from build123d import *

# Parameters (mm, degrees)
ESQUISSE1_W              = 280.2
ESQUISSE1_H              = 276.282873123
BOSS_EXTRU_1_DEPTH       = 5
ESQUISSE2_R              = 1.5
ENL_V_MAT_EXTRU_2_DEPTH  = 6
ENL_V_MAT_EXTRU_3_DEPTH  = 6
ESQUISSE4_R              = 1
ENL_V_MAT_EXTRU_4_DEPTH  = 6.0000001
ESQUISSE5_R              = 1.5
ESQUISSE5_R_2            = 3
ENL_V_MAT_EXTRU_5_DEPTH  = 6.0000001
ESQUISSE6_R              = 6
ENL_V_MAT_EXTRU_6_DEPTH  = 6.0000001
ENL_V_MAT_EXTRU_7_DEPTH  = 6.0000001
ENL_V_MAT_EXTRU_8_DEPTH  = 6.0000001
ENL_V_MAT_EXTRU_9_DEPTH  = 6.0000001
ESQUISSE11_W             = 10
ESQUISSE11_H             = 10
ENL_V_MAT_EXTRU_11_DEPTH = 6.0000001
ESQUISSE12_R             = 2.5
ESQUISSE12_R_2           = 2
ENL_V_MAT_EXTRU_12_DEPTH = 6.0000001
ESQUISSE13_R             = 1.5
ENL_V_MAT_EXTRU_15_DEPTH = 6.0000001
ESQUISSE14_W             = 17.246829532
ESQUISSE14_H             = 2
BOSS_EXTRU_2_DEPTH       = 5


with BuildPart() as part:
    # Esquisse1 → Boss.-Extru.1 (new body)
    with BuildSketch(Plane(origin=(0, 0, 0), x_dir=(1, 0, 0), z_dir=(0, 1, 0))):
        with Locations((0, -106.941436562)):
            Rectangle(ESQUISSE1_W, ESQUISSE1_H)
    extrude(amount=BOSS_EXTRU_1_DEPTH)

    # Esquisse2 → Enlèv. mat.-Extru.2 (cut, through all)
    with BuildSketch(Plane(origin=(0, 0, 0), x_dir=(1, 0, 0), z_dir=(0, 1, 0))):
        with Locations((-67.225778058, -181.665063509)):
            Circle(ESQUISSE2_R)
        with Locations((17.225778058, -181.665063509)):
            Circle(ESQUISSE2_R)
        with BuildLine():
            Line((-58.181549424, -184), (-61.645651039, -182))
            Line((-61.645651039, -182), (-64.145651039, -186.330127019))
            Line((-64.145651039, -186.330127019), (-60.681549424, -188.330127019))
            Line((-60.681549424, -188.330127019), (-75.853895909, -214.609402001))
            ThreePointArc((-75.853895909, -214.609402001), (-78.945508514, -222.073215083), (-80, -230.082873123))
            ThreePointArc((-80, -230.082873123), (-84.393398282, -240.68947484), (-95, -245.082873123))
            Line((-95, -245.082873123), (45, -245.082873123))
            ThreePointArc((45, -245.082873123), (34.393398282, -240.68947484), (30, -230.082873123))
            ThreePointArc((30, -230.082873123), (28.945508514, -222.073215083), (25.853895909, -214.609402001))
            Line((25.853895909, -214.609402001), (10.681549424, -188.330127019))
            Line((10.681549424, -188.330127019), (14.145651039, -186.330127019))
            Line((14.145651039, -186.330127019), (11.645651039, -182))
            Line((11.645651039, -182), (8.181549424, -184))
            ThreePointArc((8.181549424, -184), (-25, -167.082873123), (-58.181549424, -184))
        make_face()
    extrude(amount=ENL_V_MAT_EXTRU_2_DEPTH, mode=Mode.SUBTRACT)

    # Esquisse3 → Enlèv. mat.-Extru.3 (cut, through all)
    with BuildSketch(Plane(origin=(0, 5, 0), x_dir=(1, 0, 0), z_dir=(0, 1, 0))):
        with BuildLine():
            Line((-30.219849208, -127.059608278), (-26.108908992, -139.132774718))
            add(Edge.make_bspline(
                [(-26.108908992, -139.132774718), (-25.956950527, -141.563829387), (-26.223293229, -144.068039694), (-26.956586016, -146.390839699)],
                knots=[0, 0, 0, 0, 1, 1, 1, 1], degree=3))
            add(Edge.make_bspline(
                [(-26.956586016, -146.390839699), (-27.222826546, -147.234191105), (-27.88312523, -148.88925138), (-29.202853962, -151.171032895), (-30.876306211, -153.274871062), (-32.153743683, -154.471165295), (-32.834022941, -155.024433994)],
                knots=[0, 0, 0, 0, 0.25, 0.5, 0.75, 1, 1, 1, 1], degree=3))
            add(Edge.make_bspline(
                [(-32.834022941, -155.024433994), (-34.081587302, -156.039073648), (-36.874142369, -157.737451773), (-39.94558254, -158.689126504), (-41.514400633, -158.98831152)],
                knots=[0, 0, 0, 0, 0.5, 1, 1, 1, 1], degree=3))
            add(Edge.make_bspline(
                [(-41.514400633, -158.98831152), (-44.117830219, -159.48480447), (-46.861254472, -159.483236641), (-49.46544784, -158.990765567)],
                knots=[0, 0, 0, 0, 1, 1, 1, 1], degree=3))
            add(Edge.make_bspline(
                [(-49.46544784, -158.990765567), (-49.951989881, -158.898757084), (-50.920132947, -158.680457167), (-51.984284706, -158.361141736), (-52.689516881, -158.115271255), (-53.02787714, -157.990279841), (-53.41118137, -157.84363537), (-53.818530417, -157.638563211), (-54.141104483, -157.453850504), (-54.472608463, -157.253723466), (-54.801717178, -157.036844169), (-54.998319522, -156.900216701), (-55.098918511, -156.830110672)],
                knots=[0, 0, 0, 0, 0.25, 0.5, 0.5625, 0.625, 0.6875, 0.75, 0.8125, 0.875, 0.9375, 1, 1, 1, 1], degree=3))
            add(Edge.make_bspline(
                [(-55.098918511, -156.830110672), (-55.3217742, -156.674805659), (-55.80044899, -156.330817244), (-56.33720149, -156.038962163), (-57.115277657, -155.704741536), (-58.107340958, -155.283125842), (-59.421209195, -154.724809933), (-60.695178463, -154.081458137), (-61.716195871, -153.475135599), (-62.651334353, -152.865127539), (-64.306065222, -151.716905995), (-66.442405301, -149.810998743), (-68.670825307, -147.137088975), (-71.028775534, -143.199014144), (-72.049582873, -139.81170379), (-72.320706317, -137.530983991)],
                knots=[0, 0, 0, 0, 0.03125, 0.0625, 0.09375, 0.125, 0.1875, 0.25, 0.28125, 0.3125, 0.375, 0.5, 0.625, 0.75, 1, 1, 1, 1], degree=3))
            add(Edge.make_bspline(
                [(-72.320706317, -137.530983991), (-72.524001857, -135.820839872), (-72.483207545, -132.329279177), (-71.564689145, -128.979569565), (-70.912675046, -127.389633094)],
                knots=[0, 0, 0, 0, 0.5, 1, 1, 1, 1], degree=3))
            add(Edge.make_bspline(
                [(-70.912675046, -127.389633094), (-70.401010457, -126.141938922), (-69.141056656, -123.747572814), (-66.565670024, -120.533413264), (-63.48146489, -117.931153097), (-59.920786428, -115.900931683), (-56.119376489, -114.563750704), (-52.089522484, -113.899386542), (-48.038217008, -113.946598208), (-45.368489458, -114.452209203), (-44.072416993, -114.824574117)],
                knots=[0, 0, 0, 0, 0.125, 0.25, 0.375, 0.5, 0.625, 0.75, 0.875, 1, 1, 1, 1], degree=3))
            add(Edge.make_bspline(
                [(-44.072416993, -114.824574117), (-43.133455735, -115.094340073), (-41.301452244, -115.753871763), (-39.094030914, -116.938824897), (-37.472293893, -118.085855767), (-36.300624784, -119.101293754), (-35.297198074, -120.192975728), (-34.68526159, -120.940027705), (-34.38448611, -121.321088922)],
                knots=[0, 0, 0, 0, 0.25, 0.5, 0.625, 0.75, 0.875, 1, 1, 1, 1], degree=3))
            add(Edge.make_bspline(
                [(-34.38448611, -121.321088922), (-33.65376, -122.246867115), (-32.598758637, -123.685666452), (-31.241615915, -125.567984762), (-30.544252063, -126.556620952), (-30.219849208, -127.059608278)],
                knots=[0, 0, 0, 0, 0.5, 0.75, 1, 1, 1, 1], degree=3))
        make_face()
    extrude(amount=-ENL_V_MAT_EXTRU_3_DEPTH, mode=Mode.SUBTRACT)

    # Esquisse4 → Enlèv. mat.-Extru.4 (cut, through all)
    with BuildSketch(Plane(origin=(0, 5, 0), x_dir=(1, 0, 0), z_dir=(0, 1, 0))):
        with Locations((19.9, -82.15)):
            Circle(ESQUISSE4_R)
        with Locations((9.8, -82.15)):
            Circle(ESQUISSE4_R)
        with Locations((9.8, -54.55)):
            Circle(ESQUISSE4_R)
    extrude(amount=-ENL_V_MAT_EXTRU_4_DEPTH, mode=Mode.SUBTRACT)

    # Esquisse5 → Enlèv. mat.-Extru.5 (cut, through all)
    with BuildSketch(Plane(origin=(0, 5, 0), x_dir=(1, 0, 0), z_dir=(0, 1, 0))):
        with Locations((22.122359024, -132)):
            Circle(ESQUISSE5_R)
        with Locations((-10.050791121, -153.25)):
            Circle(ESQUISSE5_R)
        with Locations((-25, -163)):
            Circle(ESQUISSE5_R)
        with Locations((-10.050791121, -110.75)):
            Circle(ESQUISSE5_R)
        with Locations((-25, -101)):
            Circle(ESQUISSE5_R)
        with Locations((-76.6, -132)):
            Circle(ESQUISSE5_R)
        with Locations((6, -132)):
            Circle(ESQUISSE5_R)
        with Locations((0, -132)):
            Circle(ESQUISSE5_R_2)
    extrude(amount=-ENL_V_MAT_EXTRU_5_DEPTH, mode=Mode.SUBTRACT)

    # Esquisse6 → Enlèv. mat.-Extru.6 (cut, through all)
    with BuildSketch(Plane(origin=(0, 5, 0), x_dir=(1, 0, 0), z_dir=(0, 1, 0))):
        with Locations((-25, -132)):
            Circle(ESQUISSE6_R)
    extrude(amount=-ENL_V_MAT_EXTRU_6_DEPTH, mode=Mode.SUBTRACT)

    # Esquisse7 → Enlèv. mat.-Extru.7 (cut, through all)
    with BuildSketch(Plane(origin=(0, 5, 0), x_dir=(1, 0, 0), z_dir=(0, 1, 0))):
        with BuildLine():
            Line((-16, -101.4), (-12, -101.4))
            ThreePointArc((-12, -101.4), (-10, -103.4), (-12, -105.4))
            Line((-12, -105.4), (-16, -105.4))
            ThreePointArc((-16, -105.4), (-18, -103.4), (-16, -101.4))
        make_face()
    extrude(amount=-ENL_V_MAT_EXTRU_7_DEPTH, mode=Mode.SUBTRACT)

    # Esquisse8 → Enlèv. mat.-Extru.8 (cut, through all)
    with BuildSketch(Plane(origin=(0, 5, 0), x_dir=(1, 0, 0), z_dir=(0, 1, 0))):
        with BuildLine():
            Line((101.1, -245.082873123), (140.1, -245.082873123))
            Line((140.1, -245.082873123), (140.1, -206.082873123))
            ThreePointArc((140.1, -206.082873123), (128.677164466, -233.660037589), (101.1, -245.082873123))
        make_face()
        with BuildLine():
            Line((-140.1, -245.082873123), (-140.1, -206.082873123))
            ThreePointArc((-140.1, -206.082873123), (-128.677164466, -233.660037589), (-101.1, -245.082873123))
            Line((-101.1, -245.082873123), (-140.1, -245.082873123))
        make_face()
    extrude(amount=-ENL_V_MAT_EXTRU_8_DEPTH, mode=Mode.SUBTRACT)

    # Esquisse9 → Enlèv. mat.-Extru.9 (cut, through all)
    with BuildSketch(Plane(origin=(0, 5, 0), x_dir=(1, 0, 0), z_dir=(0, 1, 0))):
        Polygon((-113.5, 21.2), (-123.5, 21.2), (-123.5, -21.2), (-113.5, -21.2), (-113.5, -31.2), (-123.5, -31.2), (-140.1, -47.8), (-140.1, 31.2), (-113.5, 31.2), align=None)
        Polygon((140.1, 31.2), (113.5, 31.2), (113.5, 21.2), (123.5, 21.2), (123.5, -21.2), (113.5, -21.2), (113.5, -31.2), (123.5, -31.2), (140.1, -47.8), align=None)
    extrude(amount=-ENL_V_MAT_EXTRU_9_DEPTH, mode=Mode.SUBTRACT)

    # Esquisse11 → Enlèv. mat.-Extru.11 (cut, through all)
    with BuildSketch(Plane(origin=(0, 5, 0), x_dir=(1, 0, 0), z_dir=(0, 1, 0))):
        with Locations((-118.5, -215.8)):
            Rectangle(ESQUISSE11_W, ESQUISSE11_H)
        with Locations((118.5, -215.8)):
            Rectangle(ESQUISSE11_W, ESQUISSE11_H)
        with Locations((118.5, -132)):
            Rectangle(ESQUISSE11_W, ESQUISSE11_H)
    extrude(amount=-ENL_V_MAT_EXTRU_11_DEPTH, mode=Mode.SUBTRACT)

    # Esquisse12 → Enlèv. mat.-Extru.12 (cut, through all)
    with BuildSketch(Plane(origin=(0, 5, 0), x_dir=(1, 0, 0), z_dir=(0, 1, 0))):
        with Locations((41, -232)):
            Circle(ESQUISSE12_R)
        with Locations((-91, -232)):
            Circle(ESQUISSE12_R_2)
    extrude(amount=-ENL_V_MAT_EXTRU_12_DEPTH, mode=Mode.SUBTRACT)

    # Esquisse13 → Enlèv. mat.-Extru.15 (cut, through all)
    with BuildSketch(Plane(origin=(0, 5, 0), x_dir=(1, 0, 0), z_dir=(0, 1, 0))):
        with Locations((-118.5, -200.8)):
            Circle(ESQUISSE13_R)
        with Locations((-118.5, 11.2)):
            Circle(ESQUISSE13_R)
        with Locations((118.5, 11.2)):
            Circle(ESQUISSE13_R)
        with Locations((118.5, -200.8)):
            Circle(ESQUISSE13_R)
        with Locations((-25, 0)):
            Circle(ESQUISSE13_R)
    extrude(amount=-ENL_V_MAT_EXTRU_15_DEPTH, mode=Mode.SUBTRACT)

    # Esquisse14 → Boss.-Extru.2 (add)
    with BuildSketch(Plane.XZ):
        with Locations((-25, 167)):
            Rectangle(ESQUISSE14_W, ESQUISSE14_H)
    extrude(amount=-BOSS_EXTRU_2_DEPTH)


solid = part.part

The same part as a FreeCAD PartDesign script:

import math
import FreeCAD as App
import Part
import Sketcher
from FreeCAD import Vector
Q = App.Units.Quantity

doc = App.newDocument("Part")
body = doc.addObject("PartDesign::Body", "Body")

# Sketch on XZ plane
sketch1 = body.newObject("Sketcher::SketchObject", "Sketch")
sketch1.AttachmentSupport = (doc.getObject("XZ_Plane"), [""])
sketch1.MapMode = "FlatFace"
sketch1.addGeometry([
    Part.LineSegment(Vector(-140, -31, 0), Vector(-140, 245, 0)),
    Part.LineSegment(Vector(-140, 245, 0), Vector(140, 245, 0)),
    Part.LineSegment(Vector(140, 245, 0), Vector(140, -31, 0)),
    Part.LineSegment(Vector(140, -31, 0), Vector(-140, -31, 0)),
], False)
sketch1.addConstraint([
    Sketcher.Constraint("Coincident", 0, 2, 1, 1),
    Sketcher.Constraint("Coincident", 1, 2, 2, 1),
    Sketcher.Constraint("Coincident", 2, 2, 3, 1),
    Sketcher.Constraint("Coincident", 3, 2, 0, 1),
    Sketcher.Constraint("Vertical", 0),
    Sketcher.Constraint("Horizontal", 1),
    Sketcher.Constraint("Vertical", 2),
    Sketcher.Constraint("Horizontal", 3),
    Sketcher.Constraint("DistanceX", 1, 1, 1, 2, Q("280.2 mm")),
    Sketcher.Constraint("DistanceX", 0, 2, -1, 1, Q("140.1 mm")),
    Sketcher.Constraint("DistanceY", 2, 2, -1, 1, Q("31.2 mm")),
    Sketcher.Constraint("DistanceY", 0, 1, 0, 2, Q("276.282873 mm")),
])
pad1 = body.newObject("PartDesign::Pad", "Pad")
pad1.Profile = sketch1
pad1.Length = 5
pad1.Reversed = True

# Sketch on XZ plane
sketch2 = body.newObject("Sketcher::SketchObject", "Sketch001")
sketch2.AttachmentSupport = (doc.getObject("XZ_Plane"), [""])
sketch2.MapMode = "FlatFace"
sketch2.addGeometry([
    Part.Circle(Vector(-67.2, 181.7, 0), Vector(0, 0, 1), 1.5),  # 0
    Part.Circle(Vector(17.2, 181.7, 0), Vector(0, 0, 1), 1.5),  # 1
    Part.LineSegment(Vector(-58.2, 184, 0), Vector(-61.6, 182, 0)),  # 2
    Part.LineSegment(Vector(-61.6, 182, 0), Vector(-64.1, 186.3, 0)),  # 3
    Part.LineSegment(Vector(-64.1, 186.3, 0), Vector(-60.7, 188.3, 0)),  # 4
    Part.LineSegment(Vector(-60.7, 188.3, 0), Vector(-75.9, 214.6, 0)),  # 5
    Part.ArcOfCircle(Part.Circle(Vector(-49.1, 230.1, 0), Vector(0, 0, 1), 30.9), math.radians(-180), math.radians(-150)),  # 6
    Part.ArcOfCircle(Part.Circle(Vector(-95, 230.1, 0), Vector(0, 0, 1), 15), math.radians(0), math.radians(90)),  # 7
    Part.LineSegment(Vector(-95, 245.1, 0), Vector(45, 245.1, 0)),  # 8
    Part.ArcOfCircle(Part.Circle(Vector(45, 230.1, 0), Vector(0, 0, 1), 15), math.radians(90), math.radians(180)),  # 9
    Part.ArcOfCircle(Part.Circle(Vector(-0.9, 230.1, 0), Vector(0, 0, 1), 30.9), math.radians(-30), math.radians(0)),  # 10
    Part.LineSegment(Vector(25.9, 214.6, 0), Vector(10.7, 188.3, 0)),  # 11
    Part.LineSegment(Vector(10.7, 188.3, 0), Vector(14.1, 186.3, 0)),  # 12
    Part.LineSegment(Vector(14.1, 186.3, 0), Vector(11.6, 182, 0)),  # 13
    Part.LineSegment(Vector(11.6, 182, 0), Vector(8.2, 184, 0)),  # 14
    Part.ArcOfCircle(Part.Circle(Vector(-25, 208.1, 0), Vector(0, 0, 1), 41), math.radians(-144), math.radians(-36)),  # 15
], False)
sketch2.addConstraint([
    Sketcher.Constraint("Coincident", 2, 2, 3, 1),
    Sketcher.Constraint("Coincident", 3, 2, 4, 1),
    Sketcher.Constraint("Coincident", 4, 2, 5, 1),
    Sketcher.Constraint("Tangent", 5, 2, 6, 2),
    Sketcher.Constraint("Tangent", 6, 1, 7, 1),
    Sketcher.Constraint("Tangent", 7, 2, 8, 1),
    Sketcher.Constraint("Tangent", 8, 2, 9, 1),
    Sketcher.Constraint("Tangent", 9, 2, 10, 2),
    Sketcher.Constraint("Tangent", 10, 1, 11, 1),
    Sketcher.Constraint("Coincident", 11, 2, 12, 1),
    Sketcher.Constraint("Coincident", 12, 2, 13, 1),
    Sketcher.Constraint("Coincident", 13, 2, 14, 1),
    Sketcher.Constraint("Coincident", 14, 2, 15, 2),
    Sketcher.Constraint("Coincident", 15, 1, 2, 1),
    Sketcher.Constraint("Horizontal", 8),
    Sketcher.Constraint("Equal", 0, 1),
    Sketcher.Constraint("Equal", 7, 9),
    Sketcher.Constraint("Equal", 6, 10),
    Sketcher.Constraint("Perpendicular", 2, 3),
    Sketcher.Constraint("Perpendicular", 3, 4),
    Sketcher.Constraint("Perpendicular", 4, 5),
    Sketcher.Constraint("Perpendicular", 11, 12),
    Sketcher.Constraint("Perpendicular", 12, 13),
    Sketcher.Constraint("Perpendicular", 13, 14),
    Sketcher.Constraint("Horizontal", 0, 3, 1, 3),
    Sketcher.Constraint("Horizontal", 6, 3, 7, 3),
    Sketcher.Constraint("Horizontal", 9, 3, 10, 3),
    Sketcher.Constraint("Horizontal", 5, 2, 10, 1),
    Sketcher.Constraint("Horizontal", 4, 2, 11, 2),
    Sketcher.Constraint("Horizontal", 3, 2, 12, 2),
    Sketcher.Constraint("Horizontal", 2, 2, 13, 2),
    Sketcher.Constraint("Horizontal", 14, 2, 15, 1),
    Sketcher.Constraint("Equal", 2, 4),
    Sketcher.Constraint("Diameter", 0, Q("3 mm")),
    Sketcher.Constraint("Radius", 7, Q("15 mm")),
    Sketcher.Constraint("Radius", 15, Q("41 mm")),
    Sketcher.Constraint("DistanceX", 8, 1, 8, 2, Q("140 mm")),
    Sketcher.Constraint("Angle", 2, Q("-150 deg")),
    Sketcher.Constraint("Distance", 2, Q("4 mm")),
    Sketcher.Constraint("Distance", 3, Q("5 mm")),
    Sketcher.Constraint("DistanceX", 7, 3, -1, 1, Q("95 mm")),
    Sketcher.Constraint("DistanceY", -1, 1, 2, 2, Q("182 mm")),
    Sketcher.Constraint("DistanceY", 15, 3, 6, 3, Q("22 mm")),
    Sketcher.Constraint("Radius", 6, Q("30.946942 mm")),
    Sketcher.Constraint("DistanceX", 0, 3, -1, 1, Q("67.225778 mm")),
    Sketcher.Constraint("DistanceX", -1, 1, 1, 3, Q("17.225778 mm")),
    Sketcher.Constraint("DistanceY", 0, 3, 6, 3, Q("48.41781 mm")),
])
pocket1 = body.newObject("PartDesign::Pocket", "Pocket")
pocket1.Profile = sketch2
pocket1.Type = "ThroughAll"

# Sketch on XZ plane
sketch3 = body.newObject("Sketcher::SketchObject", "Sketch002")
sketch3.AttachmentSupport = (doc.getObject("XZ_Plane"), [""])
sketch3.MapMode = "FlatFace"
sketch3.AttachmentOffset = App.Placement(Vector(0, 0, -5), App.Rotation())
sketch3.addGeometry([
    Part.LineSegment(Vector(-26.108909, 139.132775, 0), Vector(-30.219849, 127.059608, 0)),  # 0
    Part.BSplineCurve([Vector(-34.384486, 121.321089, 0), Vector(-33.65376, 122.246867, 0), Vector(-32.598759, 123.685666, 0), Vector(-31.241616, 125.567985, 0), Vector(-30.544252, 126.556621, 0), Vector(-30.219849, 127.059608, 0)], [4, 1, 1, 4], [0, 0.5, 0.75, 1], False, 3, [1, 1, 1, 1, 1, 1], False),  # 1
    Part.BSplineCurve([Vector(-44.072417, 114.824574, 0), Vector(-43.133456, 115.09434, 0), Vector(-41.301452, 115.753872, 0), Vector(-39.094031, 116.938825, 0), Vector(-37.472294, 118.085856, 0), Vector(-36.300625, 119.101294, 0), Vector(-35.297198, 120.192976, 0), Vector(-34.685262, 120.940028, 0), Vector(-34.384486, 121.321089, 0)], [4, 1, 1, 1, 1, 1, 4], [0, 0.25, 0.5, 0.625, 0.75, 0.875, 1], False, 3, [1, 1, 1, 1, 1, 1, 1, 1, 1], False),  # 2
    Part.BSplineCurve([Vector(-70.912675, 127.389633, 0), Vector(-70.40101, 126.141939, 0), Vector(-69.141057, 123.747573, 0), Vector(-66.56567, 120.533413, 0), Vector(-63.481465, 117.931153, 0), Vector(-59.920786, 115.900932, 0), Vector(-56.119376, 114.563751, 0), Vector(-52.089522, 113.899387, 0), Vector(-48.038217, 113.946598, 0), Vector(-45.368489, 114.452209, 0), Vector(-44.072417, 114.824574, 0)], [4, 1, 1, 1, 1, 1, 1, 1, 4], [0, 0.125, 0.25, 0.375, 0.5, 0.625, 0.75, 0.875, 1], False, 3, [1, 1, 1, 1, 1, 1, 1, 1, 1, 1, 1], False),  # 3
    Part.BSplineCurve([Vector(-72.320706, 137.530984, 0), Vector(-72.524002, 135.82084, 0), Vector(-72.483208, 132.329279, 0), Vector(-71.564689, 128.97957, 0), Vector(-70.912675, 127.389633, 0)], [4, 1, 4], [0, 0.5, 1], False, 3, [1, 1, 1, 1, 1], False),  # 4
    Part.BSplineCurve([Vector(-55.098919, 156.830111, 0), Vector(-55.321774, 156.674806, 0), Vector(-55.800449, 156.330817, 0), Vector(-56.337201, 156.038962, 0), Vector(-57.115278, 155.704742, 0), Vector(-58.107341, 155.283126, 0), Vector(-59.421209, 154.72481, 0), Vector(-60.695178, 154.081458, 0), Vector(-61.716196, 153.475136, 0), Vector(-62.651334, 152.865128, 0), Vector(-64.306065, 151.716906, 0), Vector(-66.442405, 149.810999, 0), Vector(-68.670825, 147.137089, 0), Vector(-71.028776, 143.199014, 0), Vector(-72.049583, 139.811704, 0), Vector(-72.320706, 137.530984, 0)], [4, 1, 1, 1, 1, 1, 1, 1, 1, 1, 1, 1, 1, 4], [0, 0.03125, 0.0625, 0.09375, 0.125, 0.1875, 0.25, 0.28125, 0.3125, 0.375, 0.5, 0.625, 0.75, 1], False, 3, [1, 1, 1, 1, 1, 1, 1, 1, 1, 1, 1, 1, 1, 1, 1, 1], False),  # 5
    Part.BSplineCurve([Vector(-49.465448, 158.990766, 0), Vector(-49.95199, 158.898757, 0), Vector(-50.920133, 158.680457, 0), Vector(-51.984285, 158.361142, 0), Vector(-52.689517, 158.115271, 0), Vector(-53.027877, 157.99028, 0), Vector(-53.411181, 157.843635, 0), Vector(-53.81853, 157.638563, 0), Vector(-54.141104, 157.453851, 0), Vector(-54.472608, 157.253723, 0), Vector(-54.801717, 157.036844, 0), Vector(-54.99832, 156.900217, 0), Vector(-55.098919, 156.830111, 0)], [4, 1, 1, 1, 1, 1, 1, 1, 1, 1, 4], [0, 0.25, 0.5, 0.5625, 0.625, 0.6875, 0.75, 0.8125, 0.875, 0.9375, 1], False, 3, [1, 1, 1, 1, 1, 1, 1, 1, 1, 1, 1, 1, 1], False),  # 6
    Part.BSplineCurve([Vector(-41.514401, 158.988312, 0), Vector(-44.11783, 159.484804, 0), Vector(-46.861254, 159.483237, 0), Vector(-49.465448, 158.990766, 0)], [4, 4], [0, 1], False, 3, [1, 1, 1, 1], False),  # 7
    Part.BSplineCurve([Vector(-32.834023, 155.024434, 0), Vector(-34.081587, 156.039074, 0), Vector(-36.874142, 157.737452, 0), Vector(-39.945583, 158.689127, 0), Vector(-41.514401, 158.988312, 0)], [4, 1, 4], [0, 0.5, 1], False, 3, [1, 1, 1, 1, 1], False),  # 8
    Part.BSplineCurve([Vector(-26.956586, 146.39084, 0), Vector(-27.222827, 147.234191, 0), Vector(-27.883125, 148.889251, 0), Vector(-29.202854, 151.171033, 0), Vector(-30.876306, 153.274871, 0), Vector(-32.153744, 154.471165, 0), Vector(-32.834023, 155.024434, 0)], [4, 1, 1, 1, 4], [0, 0.25, 0.5, 0.75, 1], False, 3, [1, 1, 1, 1, 1, 1, 1], False),  # 9
    Part.BSplineCurve([Vector(-26.108909, 139.132775, 0), Vector(-25.956951, 141.563829, 0), Vector(-26.223293, 144.06804, 0), Vector(-26.956586, 146.39084, 0)], [4, 4], [0, 1], False, 3, [1, 1, 1, 1], False),  # 10
], False)
sketch3.addConstraint([
    Sketcher.Constraint("Block", 1),
    Sketcher.Constraint("Block", 2),
    Sketcher.Constraint("Block", 3),
    Sketcher.Constraint("Block", 4),
    Sketcher.Constraint("Block", 5),
    Sketcher.Constraint("Block", 6),
    Sketcher.Constraint("Block", 7),
    Sketcher.Constraint("Block", 8),
    Sketcher.Constraint("Block", 9),
    Sketcher.Constraint("Block", 10),
    Sketcher.Constraint("Coincident", 0, 2, 1, 2),
    Sketcher.Constraint("Coincident", 10, 1, 0, 1),
])
pocket2 = body.newObject("PartDesign::Pocket", "Pocket001")
pocket2.Profile = sketch3
pocket2.Type = "ThroughAll"
pocket2.Reversed = True

# Sketch on XZ plane
sketch4 = body.newObject("Sketcher::SketchObject", "Sketch003")
sketch4.AttachmentSupport = (doc.getObject("XZ_Plane"), [""])
sketch4.MapMode = "FlatFace"
sketch4.AttachmentOffset = App.Placement(Vector(0, 0, -5), App.Rotation())
sketch4.addGeometry([
    Part.Circle(Vector(19.9, 82.2, 0), Vector(0, 0, 1), 1),
    Part.Circle(Vector(9.8, 82.2, 0), Vector(0, 0, 1), 1),
    Part.Circle(Vector(9.8, 54.5, 0), Vector(0, 0, 1), 1),
], False)
sketch4.addConstraint([
    Sketcher.Constraint("Equal", 0, 1),
    Sketcher.Constraint("Equal", 1, 2),
    Sketcher.Constraint("Horizontal", 0, 3, 1, 3),
    Sketcher.Constraint("Vertical", 1, 3, 2, 3),
    Sketcher.Constraint("Diameter", 0, Q("2 mm")),
    Sketcher.Constraint("DistanceX", -1, 1, 0, 3, Q("19.9 mm")),
    Sketcher.Constraint("DistanceX", -1, 1, 1, 3, Q("9.8 mm")),
    Sketcher.Constraint("DistanceY", 2, 3, 1, 3, Q("27.6 mm")),
    Sketcher.Constraint("DistanceY", -1, 1, 0, 3, Q("82.15 mm")),
])
pocket3 = body.newObject("PartDesign::Pocket", "Pocket002")
pocket3.Profile = sketch4
pocket3.Type = "ThroughAll"
pocket3.Reversed = True

# Sketch on XZ plane
sketch5 = body.newObject("Sketcher::SketchObject", "Sketch004")
sketch5.AttachmentSupport = (doc.getObject("XZ_Plane"), [""])
sketch5.MapMode = "FlatFace"
sketch5.AttachmentOffset = App.Placement(Vector(0, 0, -5), App.Rotation())
sketch5.addGeometry([
    Part.Circle(Vector(22.1, 132, 0), Vector(0, 0, 1), 1.5),  # 0
    Part.Circle(Vector(-10.1, 153.2, 0), Vector(0, 0, 1), 1.5),  # 1
    Part.Circle(Vector(-25, 163, 0), Vector(0, 0, 1), 1.5),  # 2
    Part.Circle(Vector(-10.1, 110.8, 0), Vector(0, 0, 1), 1.5),  # 3
    Part.Circle(Vector(-25, 101, 0), Vector(0, 0, 1), 1.5),  # 4
    Part.Circle(Vector(-76.6, 132, 0), Vector(0, 0, 1), 1.5),  # 5
    Part.Circle(Vector(6, 132, 0), Vector(0, 0, 1), 1.5),  # 6
    Part.Circle(Vector(0, 132, 0), Vector(0, 0, 1), 3),  # 7
], False)
sketch5.addConstraint([
    Sketcher.Constraint("Equal", 0, 1),
    Sketcher.Constraint("Equal", 1, 2),
    Sketcher.Constraint("Equal", 2, 3),
    Sketcher.Constraint("Equal", 3, 4),
    Sketcher.Constraint("Equal", 4, 5),
    Sketcher.Constraint("Equal", 5, 6),
    Sketcher.Constraint("PointOnObject", 7, 3, -2),
    Sketcher.Constraint("Horizontal", 0, 3, 5, 3),
    Sketcher.Constraint("Horizontal", 5, 3, 6, 3),
    Sketcher.Constraint("Horizontal", 6, 3, 7, 3),
    Sketcher.Constraint("Vertical", 1, 3, 3, 3),
    Sketcher.Constraint("Vertical", 2, 3, 4, 3),
    Sketcher.Constraint("Diameter", 0, Q("3 mm")),
    Sketcher.Constraint("Diameter", 7, Q("6 mm")),
    Sketcher.Constraint("DistanceY", -1, 1, 0, 3, Q("132 mm")),
    Sketcher.Constraint("DistanceX", 2, 3, -1, 1, Q("25 mm")),
    Sketcher.Constraint("DistanceY", -1, 1, 2, 3, Q("163 mm")),
    Sketcher.Constraint("DistanceY", -1, 1, 4, 3, Q("101 mm")),
    Sketcher.Constraint("DistanceX", -1, 1, 6, 3, Q("6 mm")),
    Sketcher.Constraint("DistanceX", 5, 3, -1, 1, Q("76.6 mm")),
    Sketcher.Constraint("DistanceY", 3, 3, 1, 3, Q("42.5 mm")),
    Sketcher.Constraint("DistanceY", -1, 1, 1, 3, Q("153.25 mm")),
    Sketcher.Constraint("DistanceX", -1, 1, 0, 3, Q("22.122359 mm")),
    Sketcher.Constraint("DistanceX", 1, 3, -1, 1, Q("10.050791 mm")),
])
pocket4 = body.newObject("PartDesign::Pocket", "Pocket003")
pocket4.Profile = sketch5
pocket4.Type = "ThroughAll"
pocket4.Reversed = True

# Sketch on XZ plane
sketch6 = body.newObject("Sketcher::SketchObject", "Sketch005")
sketch6.AttachmentSupport = (doc.getObject("XZ_Plane"), [""])
sketch6.MapMode = "FlatFace"
sketch6.AttachmentOffset = App.Placement(Vector(0, 0, -5), App.Rotation())
sketch6.addGeometry(Part.Circle(Vector(-25, 132, 0), Vector(0, 0, 1), 6), False)
sketch6.addConstraint([
    Sketcher.Constraint("Diameter", 0, Q("12 mm")),
    Sketcher.Constraint("DistanceX", 0, 3, -1, 1, Q("25 mm")),
    Sketcher.Constraint("DistanceY", -1, 1, 0, 3, Q("132 mm")),
])
pocket5 = body.newObject("PartDesign::Pocket", "Pocket004")
pocket5.Profile = sketch6
pocket5.Type = "ThroughAll"
pocket5.Reversed = True

# Sketch on XZ plane
sketch7 = body.newObject("Sketcher::SketchObject", "Sketch006")
sketch7.AttachmentSupport = (doc.getObject("XZ_Plane"), [""])
sketch7.MapMode = "FlatFace"
sketch7.AttachmentOffset = App.Placement(Vector(0, 0, -5), App.Rotation())
sketch7.addGeometry([
    Part.LineSegment(Vector(-12, 101.4, 0), Vector(-16, 101.4, 0)),
    Part.ArcOfCircle(Part.Circle(Vector(-16, 103.4, 0), Vector(0, 0, 1), 2), math.radians(90), math.radians(270)),
    Part.LineSegment(Vector(-16, 105.4, 0), Vector(-12, 105.4, 0)),
    Part.ArcOfCircle(Part.Circle(Vector(-12, 103.4, 0), Vector(0, 0, 1), 2), math.radians(-90), math.radians(90)),
], False)
sketch7.addConstraint([
    Sketcher.Constraint("Tangent", 0, 2, 1, 2),
    Sketcher.Constraint("Tangent", 1, 1, 2, 1),
    Sketcher.Constraint("Tangent", 2, 2, 3, 2),
    Sketcher.Constraint("Tangent", 3, 1, 0, 1),
    Sketcher.Constraint("Horizontal", 0),
    Sketcher.Constraint("Horizontal", 2),
    Sketcher.Constraint("Radius", 1, Q("2 mm")),
    Sketcher.Constraint("DistanceX", 0, 2, 0, 1, Q("4 mm")),
    Sketcher.Constraint("DistanceX", 1, 3, -1, 1, Q("16 mm")),
    Sketcher.Constraint("DistanceY", -1, 1, 1, 3, Q("103.4 mm")),
])
pocket6 = body.newObject("PartDesign::Pocket", "Pocket005")
pocket6.Profile = sketch7
pocket6.Type = "ThroughAll"
pocket6.Reversed = True

# Sketch on XZ plane
sketch8 = body.newObject("Sketcher::SketchObject", "Sketch007")
sketch8.AttachmentSupport = (doc.getObject("XZ_Plane"), [""])
sketch8.MapMode = "FlatFace"
sketch8.AttachmentOffset = App.Placement(Vector(0, 0, -5), App.Rotation())
sketch8.addGeometry([
    Part.LineSegment(Vector(101, 245, 0), Vector(140, 245, 0)),  # 0
    Part.LineSegment(Vector(140, 245, 0), Vector(140, 206, 0)),  # 1
    Part.ArcOfCircle(Part.Circle(Vector(101, 206, 0), Vector(0, 0, 1), 39), math.radians(0), math.radians(90)),  # 2
    Part.LineSegment(Vector(-140, 206, 0), Vector(-140, 245, 0)),  # 3
    Part.LineSegment(Vector(-140, 245, 0), Vector(-101, 245, 0)),  # 4
    Part.ArcOfCircle(Part.Circle(Vector(-101, 206, 0), Vector(0, 0, 1), 39), math.radians(90), math.radians(180)),  # 5
], False)
sketch8.addConstraint([
    Sketcher.Constraint("Coincident", 0, 2, 1, 1),
    Sketcher.Constraint("Tangent", 1, 2, 2, 1),
    Sketcher.Constraint("Tangent", 2, 2, 0, 1),
    Sketcher.Constraint("Coincident", 3, 2, 4, 1),
    Sketcher.Constraint("Tangent", 4, 2, 5, 1),
    Sketcher.Constraint("Tangent", 5, 2, 3, 1),
    Sketcher.Constraint("Horizontal", 0),
    Sketcher.Constraint("Vertical", 1),
    Sketcher.Constraint("Vertical", 3),
    Sketcher.Constraint("Horizontal", 4),
    Sketcher.Constraint("Equal", 2, 5),
    Sketcher.Constraint("Symmetric", 2, 3, 5, 3, -2),
    Sketcher.Constraint("Radius", 2, Q("39 mm")),
    Sketcher.Constraint("DistanceX", -1, 1, 2, 3, Q("101.1 mm")),
    Sketcher.Constraint("DistanceY", -1, 1, 2, 3, Q("206.082873 mm")),
])
pocket7 = body.newObject("PartDesign::Pocket", "Pocket006")
pocket7.Profile = sketch8
pocket7.Type = "ThroughAll"
pocket7.Reversed = True

# Sketch on XZ plane
sketch9 = body.newObject("Sketcher::SketchObject", "Sketch008")
sketch9.AttachmentSupport = (doc.getObject("XZ_Plane"), [""])
sketch9.MapMode = "FlatFace"
sketch9.AttachmentOffset = App.Placement(Vector(0, 0, -5), App.Rotation())
sketch9.addGeometry([
    Part.LineSegment(Vector(-124, -21, 0), Vector(-114, -21, 0)),  # 0
    Part.LineSegment(Vector(-114, -21, 0), Vector(-114, -31, 0)),  # 1
    Part.LineSegment(Vector(-114, -31, 0), Vector(-140, -31, 0)),  # 2
    Part.LineSegment(Vector(-140, -31, 0), Vector(-140, 48, 0)),  # 3
    Part.LineSegment(Vector(-140, 48, 0), Vector(-124, 31, 0)),  # 4
    Part.LineSegment(Vector(-124, 31, 0), Vector(-114, 31, 0)),  # 5
    Part.LineSegment(Vector(-114, 31, 0), Vector(-114, 21, 0)),  # 6
    Part.LineSegment(Vector(-114, 21, 0), Vector(-124, 21, 0)),  # 7
    Part.LineSegment(Vector(-124, 21, 0), Vector(-124, -21, 0)),  # 8
    Part.LineSegment(Vector(140, -31, 0), Vector(114, -31, 0)),  # 9
    Part.LineSegment(Vector(114, -31, 0), Vector(114, -21, 0)),  # 10
    Part.LineSegment(Vector(114, -21, 0), Vector(124, -21, 0)),  # 11
    Part.LineSegment(Vector(124, -21, 0), Vector(124, 21, 0)),  # 12
    Part.LineSegment(Vector(124, 21, 0), Vector(114, 21, 0)),  # 13
    Part.LineSegment(Vector(114, 21, 0), Vector(114, 31, 0)),  # 14
    Part.LineSegment(Vector(114, 31, 0), Vector(124, 31, 0)),  # 15
    Part.LineSegment(Vector(124, 31, 0), Vector(140, 48, 0)),  # 16
    Part.LineSegment(Vector(140, 48, 0), Vector(140, -31, 0)),  # 17
], False)
sketch9.addConstraint([
    Sketcher.Constraint("Coincident", 0, 2, 1, 1),
    Sketcher.Constraint("Coincident", 1, 2, 2, 1),
    Sketcher.Constraint("Coincident", 2, 2, 3, 1),
    Sketcher.Constraint("Coincident", 3, 2, 4, 1),
    Sketcher.Constraint("Coincident", 4, 2, 5, 1),
    Sketcher.Constraint("Coincident", 5, 2, 6, 1),
    Sketcher.Constraint("Coincident", 6, 2, 7, 1),
    Sketcher.Constraint("Coincident", 7, 2, 8, 1),
    Sketcher.Constraint("Coincident", 8, 2, 0, 1),
    Sketcher.Constraint("Coincident", 9, 2, 10, 1),
    Sketcher.Constraint("Coincident", 10, 2, 11, 1),
    Sketcher.Constraint("Coincident", 11, 2, 12, 1),
    Sketcher.Constraint("Coincident", 12, 2, 13, 1),
    Sketcher.Constraint("Coincident", 13, 2, 14, 1),
    Sketcher.Constraint("Coincident", 14, 2, 15, 1),
    Sketcher.Constraint("Coincident", 15, 2, 16, 1),
    Sketcher.Constraint("Coincident", 16, 2, 17, 1),
    Sketcher.Constraint("Coincident", 17, 2, 9, 1),
    Sketcher.Constraint("Horizontal", 0),
    Sketcher.Constraint("Vertical", 1),
    Sketcher.Constraint("Horizontal", 2),
    Sketcher.Constraint("Vertical", 3),
    Sketcher.Constraint("Horizontal", 5),
    Sketcher.Constraint("Vertical", 6),
    Sketcher.Constraint("Horizontal", 7),
    Sketcher.Constraint("Vertical", 8),
    Sketcher.Constraint("Horizontal", 9),
    Sketcher.Constraint("Vertical", 10),
    Sketcher.Constraint("Horizontal", 11),
    Sketcher.Constraint("Vertical", 12),
    Sketcher.Constraint("Horizontal", 13),
    Sketcher.Constraint("Vertical", 14),
    Sketcher.Constraint("Horizontal", 15),
    Sketcher.Constraint("Vertical", 17),
    Sketcher.Constraint("Symmetric", 5, 2, 9, 2, -1, 1),
    Sketcher.Constraint("Symmetric", 7, 2, 11, 2, -1, 1),
    Sketcher.Constraint("Symmetric", 0, 2, 13, 2, -1, 1),
    Sketcher.Constraint("Symmetric", 1, 2, 9, 2, -2),
    Sketcher.Constraint("Symmetric", 4, 2, 15, 2, -2),
    Sketcher.Constraint("Symmetric", 3, 2, 16, 2, -2),
    Sketcher.Constraint("Perpendicular", 4, 16),
    Sketcher.Constraint("Horizontal", 8, 2, 10, 2),
    Sketcher.Constraint("Vertical", 4, 2, 7, 2),
    Sketcher.Constraint("Equal", 15, 1),
    Sketcher.Constraint("DistanceX", 0, 1, 0, 2, Q("10 mm")),
    Sketcher.Constraint("DistanceY", 3, 1, 3, 2, Q("79 mm")),
    Sketcher.Constraint("DistanceX", 2, 2, 2, 1, Q("26.6 mm")),
    Sketcher.Constraint("DistanceX", 1, 2, 9, 2, Q("227 mm")),
])
pocket8 = body.newObject("PartDesign::Pocket", "Pocket007")
pocket8.Profile = sketch9
pocket8.Type = "ThroughAll"
pocket8.Reversed = True

# Sketch on XZ plane
sketch10 = body.newObject("Sketcher::SketchObject", "Sketch009")
sketch10.AttachmentSupport = (doc.getObject("XZ_Plane"), [""])
sketch10.MapMode = "FlatFace"
sketch10.AttachmentOffset = App.Placement(Vector(0, 0, -5), App.Rotation())
sketch10.addGeometry([
    Part.LineSegment(Vector(-124, 211, 0), Vector(-124, 221, 0)),  # 0
    Part.LineSegment(Vector(-124, 221, 0), Vector(-114, 221, 0)),  # 1
    Part.LineSegment(Vector(-114, 221, 0), Vector(-114, 211, 0)),  # 2
    Part.LineSegment(Vector(-114, 211, 0), Vector(-124, 211, 0)),  # 3
    Part.LineSegment(Vector(114, 211, 0), Vector(114, 221, 0)),  # 4
    Part.LineSegment(Vector(114, 221, 0), Vector(124, 221, 0)),  # 5
    Part.LineSegment(Vector(124, 221, 0), Vector(124, 211, 0)),  # 6
    Part.LineSegment(Vector(124, 211, 0), Vector(114, 211, 0)),  # 7
    Part.LineSegment(Vector(114, 127, 0), Vector(114, 137, 0)),  # 8
    Part.LineSegment(Vector(114, 137, 0), Vector(124, 137, 0)),  # 9
    Part.LineSegment(Vector(124, 137, 0), Vector(124, 127, 0)),  # 10
    Part.LineSegment(Vector(124, 127, 0), Vector(114, 127, 0)),  # 11
], False)
sketch10.addConstraint([
    Sketcher.Constraint("Coincident", 0, 2, 1, 1),
    Sketcher.Constraint("Coincident", 1, 2, 2, 1),
    Sketcher.Constraint("Coincident", 2, 2, 3, 1),
    Sketcher.Constraint("Coincident", 3, 2, 0, 1),
    Sketcher.Constraint("Coincident", 4, 2, 5, 1),
    Sketcher.Constraint("Coincident", 5, 2, 6, 1),
    Sketcher.Constraint("Coincident", 6, 2, 7, 1),
    Sketcher.Constraint("Coincident", 7, 2, 4, 1),
    Sketcher.Constraint("Coincident", 8, 2, 9, 1),
    Sketcher.Constraint("Coincident", 9, 2, 10, 1),
    Sketcher.Constraint("Coincident", 10, 2, 11, 1),
    Sketcher.Constraint("Coincident", 11, 2, 8, 1),
    Sketcher.Constraint("Vertical", 0),
    Sketcher.Constraint("Horizontal", 1),
    Sketcher.Constraint("Vertical", 2),
    Sketcher.Constraint("Horizontal", 3),
    Sketcher.Constraint("Vertical", 4),
    Sketcher.Constraint("Horizontal", 5),
    Sketcher.Constraint("Vertical", 6),
    Sketcher.Constraint("Horizontal", 7),
    Sketcher.Constraint("Vertical", 8),
    Sketcher.Constraint("Horizontal", 9),
    Sketcher.Constraint("Vertical", 10),
    Sketcher.Constraint("Horizontal", 11),
    Sketcher.Constraint("Symmetric", 1, 2, 4, 2, -2),
    Sketcher.Constraint("Symmetric", 3, 2, 6, 2, -2),
    Sketcher.Constraint("Vertical", 7, 2, 8, 2),
    Sketcher.Constraint("Vertical", 6, 2, 9, 2),
    Sketcher.Constraint("Equal", 11, 0),
    Sketcher.Constraint("Equal", 6, 8),
    Sketcher.Constraint("DistanceX", 1, 1, 1, 2, Q("10 mm")),
    Sketcher.Constraint("DistanceY", -1, 1, 8, 2, Q("137 mm")),
    Sketcher.Constraint("DistanceX", 1, 2, 4, 2, Q("227 mm")),
    Sketcher.Constraint("DistanceY", -1, 1, 0, 2, Q("220.8 mm")),
])
pocket9 = body.newObject("PartDesign::Pocket", "Pocket008")
pocket9.Profile = sketch10
pocket9.Type = "ThroughAll"
pocket9.Reversed = True

# Sketch on XZ plane
sketch11 = body.newObject("Sketcher::SketchObject", "Sketch010")
sketch11.AttachmentSupport = (doc.getObject("XZ_Plane"), [""])
sketch11.MapMode = "FlatFace"
sketch11.AttachmentOffset = App.Placement(Vector(0, 0, -5), App.Rotation())
sketch11.addGeometry([
    Part.Circle(Vector(41, 232, 0), Vector(0, 0, 1), 2.5),
    Part.Circle(Vector(-91, 232, 0), Vector(0, 0, 1), 2),
], False)
sketch11.addConstraint([
    Sketcher.Constraint("Horizontal", 0, 3, 1, 3),
    Sketcher.Constraint("Diameter", 0, Q("5 mm")),
    Sketcher.Constraint("Diameter", 1, Q("4 mm")),
    Sketcher.Constraint("DistanceX", -1, 1, 0, 3, Q("41 mm")),
    Sketcher.Constraint("DistanceY", -1, 1, 0, 3, Q("232 mm")),
    Sketcher.Constraint("DistanceX", 1, 3, -1, 1, Q("91 mm")),
])
pocket10 = body.newObject("PartDesign::Pocket", "Pocket009")
pocket10.Profile = sketch11
pocket10.Type = "ThroughAll"
pocket10.Reversed = True

# Sketch on XZ plane
sketch12 = body.newObject("Sketcher::SketchObject", "Sketch011")
sketch12.AttachmentSupport = (doc.getObject("XZ_Plane"), [""])
sketch12.MapMode = "FlatFace"
sketch12.AttachmentOffset = App.Placement(Vector(0, 0, -5), App.Rotation())
sketch12.addGeometry([
    Part.Circle(Vector(-118.5, 200.8, 0), Vector(0, 0, 1), 1.5),  # 0
    Part.Circle(Vector(-118.5, -11.2, 0), Vector(0, 0, 1), 1.5),  # 1
    Part.Circle(Vector(118.5, -11.2, 0), Vector(0, 0, 1), 1.5),  # 2
    Part.Circle(Vector(118.5, 200.8, 0), Vector(0, 0, 1), 1.5),  # 3
    Part.Circle(Vector(-25, 0, 0), Vector(0, 0, 1), 1.5),  # 4
], False)
sketch12.addConstraint([
    Sketcher.Constraint("Equal", 0, 1),
    Sketcher.Constraint("Equal", 1, 2),
    Sketcher.Constraint("Equal", 2, 3),
    Sketcher.Constraint("Equal", 3, 4),
    Sketcher.Constraint("Symmetric", 1, 3, 2, 3, -2),
    Sketcher.Constraint("Symmetric", 0, 3, 3, 3, -2),
    Sketcher.Constraint("PointOnObject", 4, 3, -1),
    Sketcher.Constraint("Vertical", 0, 3, 1, 3),
    Sketcher.Constraint("Diameter", 0, Q("3 mm")),
    Sketcher.Constraint("DistanceX", 4, 3, -1, 1, Q("25 mm")),
    Sketcher.Constraint("DistanceY", 1, 3, 0, 3, Q("212 mm")),
    Sketcher.Constraint("DistanceX", 1, 3, 2, 3, Q("237 mm")),
    Sketcher.Constraint("DistanceY", -1, 1, 0, 3, Q("200.8 mm")),
])
pocket11 = body.newObject("PartDesign::Pocket", "Pocket010")
pocket11.Profile = sketch12
pocket11.Type = "ThroughAll"
pocket11.Reversed = True

# Sketch on XZ plane
sketch13 = body.newObject("Sketcher::SketchObject", "Sketch012")
sketch13.AttachmentSupport = (doc.getObject("XZ_Plane"), [""])
sketch13.MapMode = "FlatFace"
sketch13.addGeometry([
    Part.LineSegment(Vector(-33.6, 168, 0), Vector(-33.6, 166, 0)),
    Part.LineSegment(Vector(-33.6, 166, 0), Vector(-16.4, 166, 0)),
    Part.LineSegment(Vector(-16.4, 166, 0), Vector(-16.4, 168, 0)),
    Part.LineSegment(Vector(-16.4, 168, 0), Vector(-33.6, 168, 0)),
], False)
sketch13.addConstraint([
    Sketcher.Constraint("Coincident", 0, 2, 1, 1),
    Sketcher.Constraint("Coincident", 1, 2, 2, 1),
    Sketcher.Constraint("Coincident", 2, 2, 3, 1),
    Sketcher.Constraint("Coincident", 3, 2, 0, 1),
    Sketcher.Constraint("Vertical", 0),
    Sketcher.Constraint("Horizontal", 1),
    Sketcher.Constraint("Vertical", 2),
    Sketcher.Constraint("Horizontal", 3),
    Sketcher.Constraint("DistanceY", 0, 2, 0, 1, Q("2 mm")),
    Sketcher.Constraint("DistanceY", -1, 1, 0, 2, Q("166 mm")),
    Sketcher.Constraint("DistanceX", 1, 1, 1, 2, Q("17.24683 mm")),
    Sketcher.Constraint("DistanceX", 0, 2, -1, 1, Q("33.623415 mm")),
])
pad2 = body.newObject("PartDesign::Pad", "Pad001")
pad2.Profile = sketch13
pad2.Length = 5
pad2.Reversed = True

doc.recompute()
